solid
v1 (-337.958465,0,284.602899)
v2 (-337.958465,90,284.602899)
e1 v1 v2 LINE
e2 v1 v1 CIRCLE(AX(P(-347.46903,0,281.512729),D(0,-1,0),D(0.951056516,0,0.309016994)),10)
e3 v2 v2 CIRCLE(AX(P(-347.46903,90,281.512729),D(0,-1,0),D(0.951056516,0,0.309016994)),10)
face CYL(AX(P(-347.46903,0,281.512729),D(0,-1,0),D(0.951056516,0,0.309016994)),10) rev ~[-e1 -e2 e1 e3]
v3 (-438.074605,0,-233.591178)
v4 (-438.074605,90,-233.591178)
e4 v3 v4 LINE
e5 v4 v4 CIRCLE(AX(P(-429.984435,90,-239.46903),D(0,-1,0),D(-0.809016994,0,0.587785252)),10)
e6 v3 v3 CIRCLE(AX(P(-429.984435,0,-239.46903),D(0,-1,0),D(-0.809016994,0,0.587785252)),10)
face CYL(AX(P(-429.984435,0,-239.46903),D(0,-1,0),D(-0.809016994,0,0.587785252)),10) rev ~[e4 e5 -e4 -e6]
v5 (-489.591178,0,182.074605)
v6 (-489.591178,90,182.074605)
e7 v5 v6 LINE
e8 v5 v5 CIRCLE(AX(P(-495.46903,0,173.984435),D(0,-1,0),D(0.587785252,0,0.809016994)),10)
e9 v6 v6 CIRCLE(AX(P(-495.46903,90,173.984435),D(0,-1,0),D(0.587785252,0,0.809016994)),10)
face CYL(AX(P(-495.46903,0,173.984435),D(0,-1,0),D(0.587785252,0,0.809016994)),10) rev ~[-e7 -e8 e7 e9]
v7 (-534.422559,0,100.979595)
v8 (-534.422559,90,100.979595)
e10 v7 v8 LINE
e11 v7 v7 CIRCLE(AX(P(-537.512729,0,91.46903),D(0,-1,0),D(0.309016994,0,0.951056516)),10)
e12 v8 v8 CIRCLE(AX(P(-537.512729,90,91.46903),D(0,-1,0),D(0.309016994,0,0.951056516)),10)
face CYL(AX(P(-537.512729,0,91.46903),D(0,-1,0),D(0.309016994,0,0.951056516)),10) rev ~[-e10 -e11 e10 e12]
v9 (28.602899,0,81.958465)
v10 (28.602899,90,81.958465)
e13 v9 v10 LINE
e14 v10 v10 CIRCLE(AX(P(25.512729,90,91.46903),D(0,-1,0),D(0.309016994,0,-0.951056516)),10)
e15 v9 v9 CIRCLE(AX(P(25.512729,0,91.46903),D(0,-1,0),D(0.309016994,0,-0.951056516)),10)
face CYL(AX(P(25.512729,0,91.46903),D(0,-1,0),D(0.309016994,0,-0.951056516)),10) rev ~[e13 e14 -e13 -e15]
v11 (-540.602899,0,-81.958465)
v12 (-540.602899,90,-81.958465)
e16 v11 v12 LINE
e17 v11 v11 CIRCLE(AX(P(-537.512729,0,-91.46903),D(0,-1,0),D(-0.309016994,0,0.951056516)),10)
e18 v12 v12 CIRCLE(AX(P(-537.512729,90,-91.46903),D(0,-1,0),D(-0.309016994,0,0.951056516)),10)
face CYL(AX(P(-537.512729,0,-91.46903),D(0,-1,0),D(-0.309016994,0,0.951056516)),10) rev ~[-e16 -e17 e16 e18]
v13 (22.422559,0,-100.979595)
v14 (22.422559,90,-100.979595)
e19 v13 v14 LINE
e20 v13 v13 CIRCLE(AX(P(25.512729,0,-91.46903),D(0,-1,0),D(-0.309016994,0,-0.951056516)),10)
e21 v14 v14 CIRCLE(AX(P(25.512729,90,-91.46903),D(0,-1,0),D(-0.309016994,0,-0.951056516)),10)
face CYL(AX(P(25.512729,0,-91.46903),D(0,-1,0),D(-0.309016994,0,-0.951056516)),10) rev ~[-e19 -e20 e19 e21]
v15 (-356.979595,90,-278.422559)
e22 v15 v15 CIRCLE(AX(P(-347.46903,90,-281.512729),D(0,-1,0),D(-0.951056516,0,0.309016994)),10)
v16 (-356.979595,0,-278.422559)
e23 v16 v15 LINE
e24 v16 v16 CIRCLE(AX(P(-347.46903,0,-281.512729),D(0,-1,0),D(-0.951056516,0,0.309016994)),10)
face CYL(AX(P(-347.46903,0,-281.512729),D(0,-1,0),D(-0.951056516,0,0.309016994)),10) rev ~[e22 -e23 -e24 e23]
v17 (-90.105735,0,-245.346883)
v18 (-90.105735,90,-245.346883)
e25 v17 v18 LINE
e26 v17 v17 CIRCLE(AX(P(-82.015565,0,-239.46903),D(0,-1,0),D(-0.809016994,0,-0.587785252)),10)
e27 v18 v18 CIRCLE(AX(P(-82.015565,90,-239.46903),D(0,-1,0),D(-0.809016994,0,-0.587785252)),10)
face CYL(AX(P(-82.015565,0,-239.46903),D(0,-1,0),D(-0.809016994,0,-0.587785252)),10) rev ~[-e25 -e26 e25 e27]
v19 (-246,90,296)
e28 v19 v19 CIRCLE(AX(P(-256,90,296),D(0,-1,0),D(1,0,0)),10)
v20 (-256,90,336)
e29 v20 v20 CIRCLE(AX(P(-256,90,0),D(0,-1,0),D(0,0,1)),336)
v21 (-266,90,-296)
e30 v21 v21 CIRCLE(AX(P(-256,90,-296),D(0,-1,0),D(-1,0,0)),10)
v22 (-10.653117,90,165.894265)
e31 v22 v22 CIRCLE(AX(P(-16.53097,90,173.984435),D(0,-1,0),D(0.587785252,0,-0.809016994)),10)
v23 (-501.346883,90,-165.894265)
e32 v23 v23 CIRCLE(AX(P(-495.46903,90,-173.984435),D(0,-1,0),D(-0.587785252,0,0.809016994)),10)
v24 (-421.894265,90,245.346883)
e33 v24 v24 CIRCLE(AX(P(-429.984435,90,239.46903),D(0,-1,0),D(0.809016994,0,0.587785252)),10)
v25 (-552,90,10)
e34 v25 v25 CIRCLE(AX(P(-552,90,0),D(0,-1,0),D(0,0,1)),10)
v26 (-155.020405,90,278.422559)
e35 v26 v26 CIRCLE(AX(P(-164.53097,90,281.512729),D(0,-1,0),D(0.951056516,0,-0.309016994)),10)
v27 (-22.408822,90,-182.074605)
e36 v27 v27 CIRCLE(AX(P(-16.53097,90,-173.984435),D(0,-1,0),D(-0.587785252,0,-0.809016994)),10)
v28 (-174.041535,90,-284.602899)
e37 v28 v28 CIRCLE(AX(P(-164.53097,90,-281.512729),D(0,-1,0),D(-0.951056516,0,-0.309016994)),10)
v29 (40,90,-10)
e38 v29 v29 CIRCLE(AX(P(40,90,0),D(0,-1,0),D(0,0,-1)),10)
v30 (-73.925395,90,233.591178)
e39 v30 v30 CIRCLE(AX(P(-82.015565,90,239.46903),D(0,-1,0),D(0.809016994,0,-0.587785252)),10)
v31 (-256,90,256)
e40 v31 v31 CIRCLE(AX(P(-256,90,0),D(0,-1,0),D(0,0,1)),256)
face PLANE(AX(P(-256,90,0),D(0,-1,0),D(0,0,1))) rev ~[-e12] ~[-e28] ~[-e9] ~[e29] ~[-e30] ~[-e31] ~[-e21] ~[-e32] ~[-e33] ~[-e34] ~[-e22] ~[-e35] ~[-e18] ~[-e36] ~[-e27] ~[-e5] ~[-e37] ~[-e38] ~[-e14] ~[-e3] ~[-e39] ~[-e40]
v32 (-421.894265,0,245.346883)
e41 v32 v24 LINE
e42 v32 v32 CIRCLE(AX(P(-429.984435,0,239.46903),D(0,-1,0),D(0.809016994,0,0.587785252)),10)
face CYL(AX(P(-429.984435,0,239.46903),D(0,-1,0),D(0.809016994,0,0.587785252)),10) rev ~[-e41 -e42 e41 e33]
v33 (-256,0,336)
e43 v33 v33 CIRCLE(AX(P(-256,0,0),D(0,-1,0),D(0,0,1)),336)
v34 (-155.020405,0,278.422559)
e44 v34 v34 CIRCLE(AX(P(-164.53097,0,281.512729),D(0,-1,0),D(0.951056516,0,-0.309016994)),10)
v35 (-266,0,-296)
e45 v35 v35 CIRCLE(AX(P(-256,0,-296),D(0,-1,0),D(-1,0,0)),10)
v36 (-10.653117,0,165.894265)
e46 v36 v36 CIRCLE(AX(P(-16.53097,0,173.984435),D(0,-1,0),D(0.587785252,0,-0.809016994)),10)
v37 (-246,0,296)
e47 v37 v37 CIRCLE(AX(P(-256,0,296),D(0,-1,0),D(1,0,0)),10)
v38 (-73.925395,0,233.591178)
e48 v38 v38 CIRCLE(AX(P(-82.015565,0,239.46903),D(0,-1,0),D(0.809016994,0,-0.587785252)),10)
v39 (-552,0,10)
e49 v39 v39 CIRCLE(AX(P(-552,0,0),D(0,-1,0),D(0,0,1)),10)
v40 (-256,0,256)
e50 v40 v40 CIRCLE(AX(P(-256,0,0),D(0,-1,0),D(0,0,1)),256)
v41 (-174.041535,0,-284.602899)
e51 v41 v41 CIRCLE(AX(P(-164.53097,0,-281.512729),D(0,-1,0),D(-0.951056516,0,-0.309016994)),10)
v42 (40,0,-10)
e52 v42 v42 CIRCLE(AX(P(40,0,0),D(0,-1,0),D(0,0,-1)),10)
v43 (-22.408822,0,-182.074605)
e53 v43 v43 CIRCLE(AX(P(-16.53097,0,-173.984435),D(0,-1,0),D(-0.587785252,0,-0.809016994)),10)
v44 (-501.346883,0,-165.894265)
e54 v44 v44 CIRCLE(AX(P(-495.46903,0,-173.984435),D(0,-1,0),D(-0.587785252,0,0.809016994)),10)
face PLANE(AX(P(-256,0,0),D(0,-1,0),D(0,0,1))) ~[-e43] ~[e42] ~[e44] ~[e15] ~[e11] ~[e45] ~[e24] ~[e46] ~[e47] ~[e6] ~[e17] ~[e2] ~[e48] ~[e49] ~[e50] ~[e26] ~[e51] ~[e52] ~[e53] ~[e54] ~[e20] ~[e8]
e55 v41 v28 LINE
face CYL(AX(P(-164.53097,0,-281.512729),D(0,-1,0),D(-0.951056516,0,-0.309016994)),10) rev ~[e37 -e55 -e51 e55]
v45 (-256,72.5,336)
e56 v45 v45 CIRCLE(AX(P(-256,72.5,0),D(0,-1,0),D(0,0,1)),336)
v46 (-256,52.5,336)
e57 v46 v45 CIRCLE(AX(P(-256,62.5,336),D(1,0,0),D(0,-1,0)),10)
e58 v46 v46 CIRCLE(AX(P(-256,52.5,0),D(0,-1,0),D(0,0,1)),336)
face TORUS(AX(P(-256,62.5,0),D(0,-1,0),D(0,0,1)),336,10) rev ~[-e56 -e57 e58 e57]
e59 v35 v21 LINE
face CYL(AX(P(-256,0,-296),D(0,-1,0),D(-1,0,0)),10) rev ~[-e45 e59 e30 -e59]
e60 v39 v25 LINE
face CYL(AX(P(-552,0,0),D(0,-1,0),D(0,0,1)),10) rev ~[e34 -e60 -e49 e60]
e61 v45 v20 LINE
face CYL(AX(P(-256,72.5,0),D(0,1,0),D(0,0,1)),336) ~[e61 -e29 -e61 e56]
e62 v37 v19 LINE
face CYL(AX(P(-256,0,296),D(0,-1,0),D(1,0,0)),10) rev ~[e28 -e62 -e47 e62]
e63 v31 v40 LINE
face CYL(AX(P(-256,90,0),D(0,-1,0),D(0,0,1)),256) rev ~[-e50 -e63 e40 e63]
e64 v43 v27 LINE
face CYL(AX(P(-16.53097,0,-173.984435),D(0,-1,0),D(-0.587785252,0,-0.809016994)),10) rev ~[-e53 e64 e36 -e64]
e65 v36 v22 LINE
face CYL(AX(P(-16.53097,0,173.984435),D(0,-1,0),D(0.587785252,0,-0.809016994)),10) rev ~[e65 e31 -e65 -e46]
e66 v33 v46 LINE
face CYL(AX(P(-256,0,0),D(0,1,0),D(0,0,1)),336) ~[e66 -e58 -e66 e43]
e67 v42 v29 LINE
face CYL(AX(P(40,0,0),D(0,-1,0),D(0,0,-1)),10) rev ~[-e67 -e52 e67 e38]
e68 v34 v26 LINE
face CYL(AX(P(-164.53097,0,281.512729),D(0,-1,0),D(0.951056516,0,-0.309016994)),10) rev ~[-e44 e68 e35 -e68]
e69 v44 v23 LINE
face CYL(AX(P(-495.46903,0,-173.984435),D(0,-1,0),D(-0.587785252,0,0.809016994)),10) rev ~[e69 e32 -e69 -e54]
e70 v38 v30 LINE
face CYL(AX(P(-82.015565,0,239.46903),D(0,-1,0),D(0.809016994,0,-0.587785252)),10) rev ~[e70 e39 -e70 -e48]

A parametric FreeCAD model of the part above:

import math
import FreeCAD as App
import Part
import Sketcher
Q = App.Units.Quantity

doc = App.newDocument("Part")
body = doc.addObject("PartDesign::Body", "Body")

# Sketch on XY plane
sketch1 = body.newObject("Sketcher::SketchObject", "Sketch")
sketch1.AttachmentSupport = (doc.getObject("XY_Plane"), [""])
sketch1.MapMode = "FlatFace"
sketch1.addGeometry([
    Part.LineSegment(App.Vector(0, 0, 0), App.Vector(80, 0, 0)),  # 0
    Part.LineSegment(App.Vector(80, 0, 0), App.Vector(80, 52, 0)),  # 1
    Part.ArcOfCircle(Part.Circle(App.Vector(80, 62, 0), App.Vector(0, 0, 1), 10), math.radians(90), math.radians(270)),  # 2
    Part.LineSegment(App.Vector(80, 72, 0), App.Vector(80, 90, 0)),  # 3
    Part.LineSegment(App.Vector(80, 90, 0), App.Vector(0, 90, 0)),  # 4
    Part.LineSegment(App.Vector(0, 90, 0), App.Vector(0, 0, 0)),  # 5
], False)
sketch1.addGeometry(Part.LineSegment(App.Vector(-256, 90, 0), App.Vector(-256, 0, 0)), True)  # axis
sketch1.addConstraint([
    Sketcher.Constraint("Coincident", 0, 2, 1, 1),
    Sketcher.Constraint("Coincident", 1, 2, 2, 2),
    Sketcher.Constraint("Coincident", 2, 1, 3, 1),
    Sketcher.Constraint("Coincident", 3, 2, 4, 1),
    Sketcher.Constraint("Coincident", 4, 2, 5, 1),
    Sketcher.Constraint("Coincident", 5, 2, 0, 1),
    Sketcher.Constraint("Horizontal", 0),
    Sketcher.Constraint("Vertical", 1),
    Sketcher.Constraint("Vertical", 3),
    Sketcher.Constraint("Horizontal", 4),
    Sketcher.Constraint("Vertical", 5),
    Sketcher.Constraint("Vertical", 6),
    Sketcher.Constraint("Coincident", 5, 2, -1, 1),
    Sketcher.Constraint("PointOnObject", 6, 2, -1),
    Sketcher.Constraint("Horizontal", 4, 2, 6, 1),
    Sketcher.Constraint("Vertical", 2, 3, 0, 2),
    Sketcher.Constraint("Vertical", 1, 2, 2, 1),
    Sketcher.Constraint("Radius", 2, Q("10 mm")),
    Sketcher.Constraint("DistanceX", 0, 1, 0, 2, Q("80 mm")),
    Sketcher.Constraint("DistanceY", 5, 2, 5, 1, Q("90 mm")),
    Sketcher.Constraint("DistanceY", 1, 1, 1, 2, Q("52.5 mm")),
    Sketcher.Constraint("DistanceX", 6, 1, -1, 1, Q("256 mm")),
])
revolution = body.newObject("PartDesign::Revolution", "Revolution")
revolution.Profile = sketch1
revolution.ReferenceAxis = (sketch1, ["Axis0"])
revolution.Angle = 360

# Sketch on XZ plane
sketch2 = body.newObject("Sketcher::SketchObject", "Sketch001")
sketch2.AttachmentSupport = (doc.getObject("XZ_Plane"), [""])
sketch2.MapMode = "FlatFace"
sketch2.addGeometry(Part.Circle(App.Vector(40, 0, 0), App.Vector(0, 0, 1), 10), False)
sketch2.addConstraint([
    Sketcher.Constraint("PointOnObject", 0, 3, -1),
    Sketcher.Constraint("Diameter", 0, Q("20 mm")),
    Sketcher.Constraint("DistanceX", -1, 1, 0, 3, Q("40 mm")),
])
pocket1 = body.newObject("PartDesign::Pocket", "Pocket")
pocket1.Profile = sketch2
pocket1.Type = "ThroughAll"
doc.recompute()

datumline = body.newObject("PartDesign::Line", "DatumLine")
datumline.Placement = App.Placement(App.Vector(-256, 0, 0), App.Rotation(App.Vector(0, 0, 1), App.Vector(0, 1, 0)))
polarpattern = body.newObject("PartDesign::PolarPattern", "PolarPattern")
polarpattern.Originals = [pocket1]
polarpattern.Axis = (datumline, [""])
polarpattern.Angle = 360
polarpattern.Occurrences = 20
body.Tip = polarpattern

doc.recompute()
